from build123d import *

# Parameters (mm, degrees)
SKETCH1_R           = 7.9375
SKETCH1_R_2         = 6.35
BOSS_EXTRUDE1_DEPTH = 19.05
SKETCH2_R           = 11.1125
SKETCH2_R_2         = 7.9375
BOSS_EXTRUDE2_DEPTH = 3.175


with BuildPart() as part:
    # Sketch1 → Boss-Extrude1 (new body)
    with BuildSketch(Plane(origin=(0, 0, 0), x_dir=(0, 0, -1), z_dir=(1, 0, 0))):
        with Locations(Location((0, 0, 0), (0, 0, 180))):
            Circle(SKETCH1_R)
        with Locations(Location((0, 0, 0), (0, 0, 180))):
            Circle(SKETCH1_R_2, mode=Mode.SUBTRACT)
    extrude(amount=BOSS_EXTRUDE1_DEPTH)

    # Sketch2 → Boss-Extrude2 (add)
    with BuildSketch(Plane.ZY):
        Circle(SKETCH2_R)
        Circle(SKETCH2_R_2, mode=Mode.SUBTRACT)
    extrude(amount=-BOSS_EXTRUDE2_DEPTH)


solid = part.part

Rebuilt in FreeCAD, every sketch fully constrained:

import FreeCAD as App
import Part
import Sketcher
from FreeCAD import Vector
Q = App.Units.Quantity

doc = App.newDocument("Part")
body = doc.addObject("PartDesign::Body", "Body")

# Sketch on YZ plane
sketch1 = doc.addObject("Sketcher::SketchObject", "Sketch")
body.addObject(sketch1)
sketch1.AttachmentSupport = (doc.YZ_Plane, [""])
sketch1.MapMode = "FlatFace"
sketch1.addGeometry([
    Part.Circle(Vector(0, 0, 0), Vector(0, 0, 1), 8),
    Part.Circle(Vector(0, 0, 0), Vector(0, 0, 1), 6),
], False)
sketch1.addConstraint([
    Sketcher.Constraint("Coincident", 0, 3, -1, 1),
    Sketcher.Constraint("Coincident", 1, 3, -1, 1),
    Sketcher.Constraint("Diameter", 1, Q("0.5 in")),
    Sketcher.Constraint("Diameter", 0, Q("0.625 in")),
])
pad1 = doc.addObject("PartDesign::Pad", "Pad")
body.addObject(pad1)
pad1.Profile = sketch1
pad1.Length = Q("0.75 in")

# Sketch on YZ plane
sketch2 = doc.addObject("Sketcher::SketchObject", "Sketch001")
body.addObject(sketch2)
sketch2.AttachmentSupport = (doc.YZ_Plane, [""])
sketch2.MapMode = "FlatFace"
sketch2.addGeometry([
    Part.Circle(Vector(0, 0, 0), Vector(0, 0, 1), 11),
    Part.Circle(Vector(0, 0, 0), Vector(0, 0, 1), 8),
], False)
sketch2.addConstraint([
    Sketcher.Constraint("Coincident", 0, 3, -1, 1),
    Sketcher.Constraint("Coincident", 1, 3, -1, 1),
    Sketcher.Constraint("Diameter", 0, Q("0.875 in")),
    Sketcher.Constraint("Diameter", 1, Q("0.625 in")),
])
pad2 = doc.addObject("PartDesign::Pad", "Pad001")
body.addObject(pad2)
pad2.Profile = sketch2
pad2.Length = Q("0.125 in")

doc.recompute()
